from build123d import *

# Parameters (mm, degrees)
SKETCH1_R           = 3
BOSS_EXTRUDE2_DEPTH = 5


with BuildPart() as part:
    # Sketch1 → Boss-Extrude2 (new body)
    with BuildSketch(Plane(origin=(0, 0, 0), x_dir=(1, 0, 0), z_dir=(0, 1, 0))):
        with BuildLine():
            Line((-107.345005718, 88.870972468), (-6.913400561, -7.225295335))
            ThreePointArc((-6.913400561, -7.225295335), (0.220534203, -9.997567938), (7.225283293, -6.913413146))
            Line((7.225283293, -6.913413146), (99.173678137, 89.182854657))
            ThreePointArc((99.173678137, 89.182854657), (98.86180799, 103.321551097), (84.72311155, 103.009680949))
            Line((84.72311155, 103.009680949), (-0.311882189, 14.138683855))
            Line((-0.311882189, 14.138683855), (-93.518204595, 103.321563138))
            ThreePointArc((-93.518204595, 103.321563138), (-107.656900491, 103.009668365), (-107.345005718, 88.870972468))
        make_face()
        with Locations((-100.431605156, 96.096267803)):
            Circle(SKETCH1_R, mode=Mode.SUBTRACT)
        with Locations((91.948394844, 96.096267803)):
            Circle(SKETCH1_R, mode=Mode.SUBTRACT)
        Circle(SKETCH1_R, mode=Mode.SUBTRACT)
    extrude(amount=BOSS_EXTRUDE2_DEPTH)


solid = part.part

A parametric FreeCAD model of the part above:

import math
import FreeCAD as App
import Part
import Sketcher

V = App.Vector
Q = App.Units.Quantity

doc = App.newDocument("Part")
params = doc.addObject("Spreadsheet::Sheet", "Params")
for row, (alias, value) in enumerate([
    ("sketch1_diameter", "6 mm"),
    ("sketch1_diameter2", "6 mm"),
    ("sketch1_diameter3", "6 mm"),
    ("sketch1_radius", "10 mm"),
    ("sketch1_radius2", "10 mm"),
    ("pad1_length", "5 mm"),
], start=1):
    params.set(f"A{row}", alias)
    params.set(f"B{row}", "=" + value)
    params.setAlias(f"B{row}", alias)

body = doc.addObject("PartDesign::Body", "Body")

# Sketch on XZ plane
sketch1 = body.newObject("Sketcher::SketchObject", "Sketch")
sketch1.AttachmentSupport = (doc.getObject("XZ_Plane"), [""])
sketch1.MapMode = "FlatFace"
sketch1.addGeometry([
    Part.LineSegment(V(-107.345006, -88.870972, 0), V(-6.913401, 7.225295, 0)),  # 0
    Part.ArcOfCircle(Part.Circle(V(0, 0, 0), V(0, 0, 1), 10), math.radians(43.73638), math.radians(133.73628)),  # 1
    Part.LineSegment(V(7.225283, 6.913413, 0), V(99.173678, -89.182855, 0)),  # 2
    Part.ArcOfCircle(Part.Circle(V(91.948395, -96.096268, 0), V(0, 0, 1), 10), math.radians(-136.26362), math.radians(43.73638)),  # 3
    Part.LineSegment(V(84.723112, -103.009681, 0), V(-0.311882, -14.138684, 0)),  # 4
    Part.LineSegment(V(-0.311882, -14.138684, 0), V(-93.518205, -103.321563, 0)),  # 5
    Part.ArcOfCircle(Part.Circle(V(-100.431605, -96.096268, 0), V(0, 0, 1), 10), math.radians(133.73628), math.radians(313.73628)),  # 6
    Part.Circle(V(0, 0, 0), V(0, 0, 1), 3),  # 7
    Part.Circle(V(-100.431605, -96.096268, 0), V(0, 0, 1), 3),  # 8
    Part.Circle(V(91.948395, -96.096268, 0), V(0, 0, 1), 3),  # 9
], False)
sketch1.addConstraint([
    Sketcher.Constraint("Coincident", 0, 2, 1, 2),
    Sketcher.Constraint("Coincident", 1, 1, 2, 1),
    Sketcher.Constraint("Coincident", 2, 2, 3, 2),
    Sketcher.Constraint("Coincident", 3, 1, 4, 1),
    Sketcher.Constraint("Coincident", 4, 2, 5, 1),
    Sketcher.Constraint("Coincident", 5, 2, 6, 2),
    Sketcher.Constraint("Coincident", 6, 1, 0, 1),
    Sketcher.Constraint("Coincident", 1, 3, -1, 1),
    Sketcher.Constraint("Coincident", 7, 3, -1, 1),
    Sketcher.Constraint("Coincident", 8, 3, 6, 3),
    Sketcher.Constraint("Coincident", 9, 3, 3, 3),
    Sketcher.Constraint("Diameter", 7, Q("6 mm")),
    Sketcher.Constraint("Diameter", 8, Q("6 mm")),
    Sketcher.Constraint("Diameter", 9, Q("6 mm")),
    Sketcher.Constraint("Radius", 1, Q("10 mm")),
    Sketcher.Constraint("Radius", 3, Q("10 mm")),
    Sketcher.Constraint("Radius", 6, Q("10 mm")),
    Sketcher.Constraint("Distance", 0, Q("139 mm")),
    Sketcher.Constraint("Distance", 2, Q("133 mm")),
    Sketcher.Constraint("DistanceX", 6, 3, 3, 3, Q("192.38 mm")),
    Sketcher.Constraint("DistanceX", 0, 2, -1, 1, Q("6.913401 mm")),
    Sketcher.Constraint("DistanceX", 6, 3, 5, 2, Q("6.913401 mm")),
    Sketcher.Constraint("DistanceX", 6, 1, 6, 3, Q("6.913401 mm")),
    Sketcher.Constraint("DistanceX", -1, 1, 2, 2, Q("99.173678 mm")),
    Sketcher.Constraint("DistanceX", -1, 1, 3, 1, Q("84.723112 mm")),
    Sketcher.Constraint("DistanceY", 3, 1, -1, 1, Q("103.009681 mm")),
    Sketcher.Constraint("DistanceX", 1, 1, 9, 3, Q("84.723112 mm")),
    Sketcher.Constraint("DistanceX", 0, 2, 4, 2, Q("6.601518 mm")),
    Sketcher.Constraint("DistanceY", 4, 2, 0, 2, Q("21.363979 mm")),
])
sketch1.setExpression("Constraints[11]", "Params.sketch1_diameter")
sketch1.setExpression("Constraints[12]", "Params.sketch1_diameter2")
sketch1.setExpression("Constraints[13]", "Params.sketch1_diameter3")
sketch1.setExpression("Constraints[14]", "Params.sketch1_radius")
sketch1.setExpression("Constraints[15]", "Params.sketch1_radius2")
pad1 = body.newObject("PartDesign::Pad", "Pad")
pad1.Profile = sketch1
pad1.setExpression("Length", "Params.pad1_length")
pad1.Reversed = True

doc.recompute()
